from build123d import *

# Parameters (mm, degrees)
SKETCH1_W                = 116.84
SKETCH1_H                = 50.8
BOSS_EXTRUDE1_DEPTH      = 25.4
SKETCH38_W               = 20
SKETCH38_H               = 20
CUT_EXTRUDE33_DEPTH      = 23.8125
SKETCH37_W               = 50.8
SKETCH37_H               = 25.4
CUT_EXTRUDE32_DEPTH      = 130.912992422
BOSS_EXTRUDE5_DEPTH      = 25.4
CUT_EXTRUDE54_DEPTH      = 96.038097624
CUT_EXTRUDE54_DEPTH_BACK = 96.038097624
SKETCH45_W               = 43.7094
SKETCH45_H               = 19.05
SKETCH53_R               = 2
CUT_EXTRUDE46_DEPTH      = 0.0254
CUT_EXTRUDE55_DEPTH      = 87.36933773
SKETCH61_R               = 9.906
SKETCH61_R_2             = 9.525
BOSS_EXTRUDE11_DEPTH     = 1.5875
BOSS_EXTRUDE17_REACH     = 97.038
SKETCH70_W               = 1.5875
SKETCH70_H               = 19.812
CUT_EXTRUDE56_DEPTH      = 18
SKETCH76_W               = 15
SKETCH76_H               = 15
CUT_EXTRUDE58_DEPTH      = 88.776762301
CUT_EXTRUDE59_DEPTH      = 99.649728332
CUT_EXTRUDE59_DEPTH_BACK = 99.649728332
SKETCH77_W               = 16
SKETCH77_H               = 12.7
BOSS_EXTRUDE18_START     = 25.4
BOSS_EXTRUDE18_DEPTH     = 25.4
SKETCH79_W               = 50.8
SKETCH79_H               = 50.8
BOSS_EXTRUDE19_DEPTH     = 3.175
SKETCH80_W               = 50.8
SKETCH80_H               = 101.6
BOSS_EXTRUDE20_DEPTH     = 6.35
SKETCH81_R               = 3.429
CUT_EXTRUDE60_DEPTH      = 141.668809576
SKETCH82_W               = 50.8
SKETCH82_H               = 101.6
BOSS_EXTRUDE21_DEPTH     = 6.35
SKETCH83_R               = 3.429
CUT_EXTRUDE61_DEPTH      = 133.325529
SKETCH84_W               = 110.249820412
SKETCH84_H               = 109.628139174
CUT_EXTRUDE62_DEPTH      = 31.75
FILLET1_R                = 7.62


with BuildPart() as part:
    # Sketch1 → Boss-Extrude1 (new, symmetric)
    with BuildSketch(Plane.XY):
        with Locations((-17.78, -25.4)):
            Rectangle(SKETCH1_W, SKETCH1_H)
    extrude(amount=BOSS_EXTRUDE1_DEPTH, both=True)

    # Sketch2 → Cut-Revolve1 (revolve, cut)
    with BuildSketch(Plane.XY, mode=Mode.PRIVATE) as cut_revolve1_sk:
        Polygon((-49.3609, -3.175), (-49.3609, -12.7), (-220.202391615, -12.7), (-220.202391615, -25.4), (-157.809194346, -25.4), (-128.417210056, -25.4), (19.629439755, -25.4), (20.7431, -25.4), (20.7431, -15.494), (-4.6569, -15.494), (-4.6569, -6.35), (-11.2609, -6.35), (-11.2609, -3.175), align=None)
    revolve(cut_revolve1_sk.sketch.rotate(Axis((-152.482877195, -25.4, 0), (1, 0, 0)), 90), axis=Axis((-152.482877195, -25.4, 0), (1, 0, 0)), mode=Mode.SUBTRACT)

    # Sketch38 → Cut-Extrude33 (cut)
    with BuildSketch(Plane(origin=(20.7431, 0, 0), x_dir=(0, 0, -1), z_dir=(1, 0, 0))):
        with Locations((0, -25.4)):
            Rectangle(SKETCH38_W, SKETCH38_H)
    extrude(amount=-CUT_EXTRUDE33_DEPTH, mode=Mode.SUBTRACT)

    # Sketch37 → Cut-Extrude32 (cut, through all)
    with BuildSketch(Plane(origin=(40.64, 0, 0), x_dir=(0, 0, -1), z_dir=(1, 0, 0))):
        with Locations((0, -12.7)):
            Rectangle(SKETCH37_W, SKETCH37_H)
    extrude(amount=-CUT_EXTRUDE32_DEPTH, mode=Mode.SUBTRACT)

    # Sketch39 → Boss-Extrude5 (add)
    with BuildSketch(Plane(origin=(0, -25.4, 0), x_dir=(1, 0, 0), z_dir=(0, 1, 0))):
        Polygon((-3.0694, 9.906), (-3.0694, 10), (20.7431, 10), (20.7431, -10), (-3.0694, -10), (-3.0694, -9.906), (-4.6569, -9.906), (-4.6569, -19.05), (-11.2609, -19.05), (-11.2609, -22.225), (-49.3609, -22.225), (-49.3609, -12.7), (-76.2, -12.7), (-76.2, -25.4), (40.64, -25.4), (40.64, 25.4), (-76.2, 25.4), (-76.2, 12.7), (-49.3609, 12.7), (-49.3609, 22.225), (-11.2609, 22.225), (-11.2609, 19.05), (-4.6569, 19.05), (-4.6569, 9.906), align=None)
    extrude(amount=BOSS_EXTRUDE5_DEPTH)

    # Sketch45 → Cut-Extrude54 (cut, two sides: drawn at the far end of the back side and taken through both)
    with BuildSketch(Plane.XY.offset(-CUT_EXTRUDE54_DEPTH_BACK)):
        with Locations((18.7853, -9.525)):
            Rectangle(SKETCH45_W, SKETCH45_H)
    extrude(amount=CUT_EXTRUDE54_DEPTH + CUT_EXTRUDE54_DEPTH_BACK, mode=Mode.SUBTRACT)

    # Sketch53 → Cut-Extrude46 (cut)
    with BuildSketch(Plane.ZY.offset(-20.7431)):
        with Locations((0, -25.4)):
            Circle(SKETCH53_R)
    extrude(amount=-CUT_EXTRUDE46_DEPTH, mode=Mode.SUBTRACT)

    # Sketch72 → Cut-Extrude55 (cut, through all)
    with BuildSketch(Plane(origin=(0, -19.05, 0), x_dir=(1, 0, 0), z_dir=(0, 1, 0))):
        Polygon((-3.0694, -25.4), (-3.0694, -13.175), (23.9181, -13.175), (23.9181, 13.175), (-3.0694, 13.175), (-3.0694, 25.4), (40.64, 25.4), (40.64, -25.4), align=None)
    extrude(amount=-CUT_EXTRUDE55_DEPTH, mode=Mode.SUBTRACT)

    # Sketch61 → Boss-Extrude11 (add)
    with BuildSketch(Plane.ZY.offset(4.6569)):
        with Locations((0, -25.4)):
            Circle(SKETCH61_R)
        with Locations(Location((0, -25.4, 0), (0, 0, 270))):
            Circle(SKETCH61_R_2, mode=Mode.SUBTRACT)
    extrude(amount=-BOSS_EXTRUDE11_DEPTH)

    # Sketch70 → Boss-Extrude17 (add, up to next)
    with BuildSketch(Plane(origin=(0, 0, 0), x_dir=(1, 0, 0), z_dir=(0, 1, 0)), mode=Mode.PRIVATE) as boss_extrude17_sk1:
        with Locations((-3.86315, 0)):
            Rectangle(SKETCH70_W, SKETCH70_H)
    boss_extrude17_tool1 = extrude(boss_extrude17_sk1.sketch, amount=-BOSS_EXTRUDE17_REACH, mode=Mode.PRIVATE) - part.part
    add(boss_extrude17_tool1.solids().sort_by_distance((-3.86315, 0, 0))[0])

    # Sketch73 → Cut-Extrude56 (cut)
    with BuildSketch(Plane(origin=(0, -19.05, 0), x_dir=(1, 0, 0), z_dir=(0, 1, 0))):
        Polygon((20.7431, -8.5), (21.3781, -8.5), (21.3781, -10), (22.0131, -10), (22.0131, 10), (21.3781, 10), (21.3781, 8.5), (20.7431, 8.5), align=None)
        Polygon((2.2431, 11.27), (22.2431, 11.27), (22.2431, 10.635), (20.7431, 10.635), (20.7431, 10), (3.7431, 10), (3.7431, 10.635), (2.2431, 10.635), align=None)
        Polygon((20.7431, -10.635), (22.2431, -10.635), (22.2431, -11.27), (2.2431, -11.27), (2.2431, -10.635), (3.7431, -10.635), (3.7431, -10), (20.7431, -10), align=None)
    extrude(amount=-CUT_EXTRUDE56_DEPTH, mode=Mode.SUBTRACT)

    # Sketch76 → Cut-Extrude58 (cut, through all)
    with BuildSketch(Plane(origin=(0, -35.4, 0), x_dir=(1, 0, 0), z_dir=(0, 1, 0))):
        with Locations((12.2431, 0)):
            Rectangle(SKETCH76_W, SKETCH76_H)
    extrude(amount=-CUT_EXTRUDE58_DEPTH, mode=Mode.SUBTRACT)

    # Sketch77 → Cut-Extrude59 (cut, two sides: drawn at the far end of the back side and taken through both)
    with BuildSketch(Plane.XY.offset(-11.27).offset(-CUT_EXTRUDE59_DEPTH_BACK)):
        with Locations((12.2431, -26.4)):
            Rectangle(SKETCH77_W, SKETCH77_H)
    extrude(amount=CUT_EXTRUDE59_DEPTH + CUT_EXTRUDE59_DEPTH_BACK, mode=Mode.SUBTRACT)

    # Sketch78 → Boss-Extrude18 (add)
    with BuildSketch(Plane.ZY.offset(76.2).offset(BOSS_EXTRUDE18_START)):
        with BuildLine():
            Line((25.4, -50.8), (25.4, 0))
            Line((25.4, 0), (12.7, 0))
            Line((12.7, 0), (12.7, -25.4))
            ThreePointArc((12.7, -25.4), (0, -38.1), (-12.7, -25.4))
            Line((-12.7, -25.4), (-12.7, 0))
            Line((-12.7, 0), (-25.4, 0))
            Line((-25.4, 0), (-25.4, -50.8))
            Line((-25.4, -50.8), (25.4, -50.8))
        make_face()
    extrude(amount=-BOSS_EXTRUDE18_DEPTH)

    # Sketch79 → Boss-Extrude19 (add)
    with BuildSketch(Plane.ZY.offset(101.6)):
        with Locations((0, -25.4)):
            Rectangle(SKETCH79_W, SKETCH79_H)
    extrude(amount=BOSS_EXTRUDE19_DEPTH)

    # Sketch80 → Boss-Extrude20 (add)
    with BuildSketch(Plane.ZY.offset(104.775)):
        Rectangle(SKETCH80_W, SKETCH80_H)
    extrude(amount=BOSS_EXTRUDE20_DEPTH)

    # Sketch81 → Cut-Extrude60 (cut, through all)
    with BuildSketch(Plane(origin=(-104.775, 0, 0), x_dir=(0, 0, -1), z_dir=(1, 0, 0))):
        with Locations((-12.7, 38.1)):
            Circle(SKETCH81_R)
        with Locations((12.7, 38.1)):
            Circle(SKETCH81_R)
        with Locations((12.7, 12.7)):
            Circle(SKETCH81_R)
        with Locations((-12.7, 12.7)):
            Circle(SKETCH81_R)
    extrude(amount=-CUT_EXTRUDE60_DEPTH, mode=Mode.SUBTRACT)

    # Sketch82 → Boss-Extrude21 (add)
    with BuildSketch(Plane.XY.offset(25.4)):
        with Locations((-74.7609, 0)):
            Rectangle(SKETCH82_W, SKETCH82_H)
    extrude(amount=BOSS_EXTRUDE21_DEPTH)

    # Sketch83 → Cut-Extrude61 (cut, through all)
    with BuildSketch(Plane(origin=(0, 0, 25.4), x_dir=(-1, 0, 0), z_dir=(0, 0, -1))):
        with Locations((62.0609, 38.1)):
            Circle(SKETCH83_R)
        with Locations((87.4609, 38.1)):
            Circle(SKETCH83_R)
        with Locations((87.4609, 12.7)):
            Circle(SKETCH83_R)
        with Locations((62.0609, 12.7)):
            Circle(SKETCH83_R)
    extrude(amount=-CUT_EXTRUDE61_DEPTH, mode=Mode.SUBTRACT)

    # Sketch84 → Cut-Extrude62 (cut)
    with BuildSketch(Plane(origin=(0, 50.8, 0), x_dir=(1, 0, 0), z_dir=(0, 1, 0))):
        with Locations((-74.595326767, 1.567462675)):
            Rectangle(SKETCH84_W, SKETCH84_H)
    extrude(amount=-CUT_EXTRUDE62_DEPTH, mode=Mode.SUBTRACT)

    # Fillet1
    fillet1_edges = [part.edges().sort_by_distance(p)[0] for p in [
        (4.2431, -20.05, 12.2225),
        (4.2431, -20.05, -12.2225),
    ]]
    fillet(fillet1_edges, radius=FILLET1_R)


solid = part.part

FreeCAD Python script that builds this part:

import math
import FreeCAD as App
import Part
import Sketcher
Q = App.Units.Quantity


def edges_at(feature, points):
    """Names of the edges that pass closest to the given points."""
    edges = feature.Shape.Edges
    near = lambda p: min(range(len(edges)), key=lambda i: edges[i].distToShape(Part.Vertex(*p))[0])
    return sorted({f"Edge{near(p) + 1}" for p in points})

doc = App.newDocument("Part")
body = doc.addObject("PartDesign::Body", "Body")

sketch1 = body.newObject("Sketcher::SketchObject", "Sketch")
sketch1.AttachmentSupport = (doc.getObject("XY_Plane"), [""])
sketch1.MapMode = "FlatFace"
sketch1.addGeometry([
    Part.LineSegment(App.Vector(-76, 0, 0), App.Vector(-76, -51, 0)),
    Part.LineSegment(App.Vector(-76, -51, 0), App.Vector(41, -51, 0)),
    Part.LineSegment(App.Vector(41, -51, 0), App.Vector(41, 0, 0)),
    Part.LineSegment(App.Vector(41, 0, 0), App.Vector(-76, 0, 0)),
], False)
sketch1.addConstraint([
    Sketcher.Constraint("Coincident", 0, 2, 1, 1),
    Sketcher.Constraint("Coincident", 1, 2, 2, 1),
    Sketcher.Constraint("Coincident", 2, 2, 3, 1),
    Sketcher.Constraint("Coincident", 3, 2, 0, 1),
    Sketcher.Constraint("Vertical", 0),
    Sketcher.Constraint("Horizontal", 1),
    Sketcher.Constraint("Vertical", 2),
    Sketcher.Constraint("Horizontal", 3),
    Sketcher.Constraint("PointOnObject", 2, 2, -1),
    Sketcher.Constraint("DistanceY", 0, 2, 0, 1, Q("2 in")),
    Sketcher.Constraint("DistanceX", 1, 1, 1, 2, Q("4.6 in")),
    Sketcher.Constraint("DistanceX", 0, 2, -1, 1, Q("3 in")),
])
pad1 = body.newObject("PartDesign::Pad", "Pad")
pad1.Profile = sketch1
pad1.Length = Q("2 in")
pad1.Midplane = True

sketch2 = body.newObject("Sketcher::SketchObject", "Sketch001")
sketch2.AttachmentSupport = (doc.getObject("XY_Plane"), [""])
sketch2.MapMode = "FlatFace"
sketch2.addGeometry([
    Part.LineSegment(App.Vector(-49.4, -3.2, 0), App.Vector(-49.4, -12.7, 0)),
    Part.LineSegment(App.Vector(-49.4, -12.7, 0), App.Vector(-220.2, -12.7, 0)),
    Part.LineSegment(App.Vector(-220.2, -12.7, 0), App.Vector(-220.2, -25.4, 0)),
    Part.LineSegment(App.Vector(-220.2, -25.4, 0), App.Vector(20.7, -25.4, 0)),
    Part.LineSegment(App.Vector(20.7, -25.4, 0), App.Vector(20.7, -15.5, 0)),
    Part.LineSegment(App.Vector(20.7, -15.5, 0), App.Vector(-4.7, -15.5, 0)),
    Part.LineSegment(App.Vector(-4.7, -15.5, 0), App.Vector(-4.7, -6.3, 0)),
    Part.LineSegment(App.Vector(-4.7, -6.3, 0), App.Vector(-11.3, -6.3, 0)),
    Part.LineSegment(App.Vector(-11.3, -6.3, 0), App.Vector(-11.3, -3.2, 0)),
    Part.LineSegment(App.Vector(-11.3, -3.2, 0), App.Vector(-49.4, -3.2, 0)),
], False)
sketch2.addGeometry(Part.LineSegment(App.Vector(-220.2, -25.4, 0), App.Vector(20.7, -25.4, 0)), True)
sketch2.addConstraint([
    Sketcher.Constraint("Coincident", 0, 2, 1, 1),
    Sketcher.Constraint("Coincident", 1, 2, 2, 1),
    Sketcher.Constraint("Coincident", 2, 2, 3, 1),
    Sketcher.Constraint("Coincident", 3, 2, 4, 1),
    Sketcher.Constraint("Coincident", 4, 2, 5, 1),
    Sketcher.Constraint("Coincident", 5, 2, 6, 1),
    Sketcher.Constraint("Coincident", 6, 2, 7, 1),
    Sketcher.Constraint("Coincident", 7, 2, 8, 1),
    Sketcher.Constraint("Coincident", 8, 2, 9, 1),
    Sketcher.Constraint("Coincident", 9, 2, 0, 1),
    Sketcher.Constraint("Vertical", 0),
    Sketcher.Constraint("Horizontal", 1),
    Sketcher.Constraint("Vertical", 2),
    Sketcher.Constraint("Horizontal", 3),
    Sketcher.Constraint("Vertical", 4),
    Sketcher.Constraint("Horizontal", 5),
    Sketcher.Constraint("Vertical", 6),
    Sketcher.Constraint("Horizontal", 7),
    Sketcher.Constraint("Vertical", 8),
    Sketcher.Constraint("Horizontal", 9),
    Sketcher.Constraint("Horizontal", 10),
    Sketcher.Constraint("Coincident", 10, 1, 2, 2),
    Sketcher.Constraint("Vertical", 4, 2, 10, 2),
    Sketcher.Constraint("DistanceX", 5, 2, 5, 1, Q("1 in")),
    Sketcher.Constraint("DistanceX", 9, 2, 9, 1, Q("1.5 in")),
    Sketcher.Constraint("DistanceY", 2, 2, 2, 1, Q("0.5 in")),
    Sketcher.Constraint("DistanceY", 2, 2, -1, 1, Q("1 in")),
    Sketcher.Constraint("DistanceX", 7, 2, 7, 1, Q("0.26 in")),
    Sketcher.Constraint("DistanceY", 4, 1, 4, 2, Q("0.39 in")),
    Sketcher.Constraint("DistanceY", 6, 1, 6, 2, Q("0.36 in")),
    Sketcher.Constraint("DistanceY", 0, 2, 0, 1, Q("0.375 in")),
    Sketcher.Constraint("DistanceX", 1, 2, 1, 1, Q("170.841492 mm")),
    Sketcher.Constraint("DistanceX", 0, 2, -1, 1, Q("49.3609 mm")),
])
groove = body.newObject("PartDesign::Groove", "Groove")
groove.Profile = sketch2
groove.ReferenceAxis = (sketch2, ["Axis0"])
groove.Angle = 360

sketch3 = body.newObject("Sketcher::SketchObject", "Sketch002")
sketch3.AttachmentSupport = (doc.getObject("YZ_Plane"), [""])
sketch3.MapMode = "FlatFace"
sketch3.AttachmentOffset = App.Placement(App.Vector(0, 0, 20.7431), App.Rotation())
sketch3.addGeometry([
    Part.LineSegment(App.Vector(-15, 10, 0), App.Vector(-35, 10, 0)),
    Part.LineSegment(App.Vector(-35, 10, 0), App.Vector(-35, -10, 0)),
    Part.LineSegment(App.Vector(-35, -10, 0), App.Vector(-15, -10, 0)),
    Part.LineSegment(App.Vector(-15, -10, 0), App.Vector(-15, 10, 0)),
], False)
sketch3.addConstraint([
    Sketcher.Constraint("Coincident", 0, 2, 1, 1),
    Sketcher.Constraint("Coincident", 1, 2, 2, 1),
    Sketcher.Constraint("Coincident", 2, 2, 3, 1),
    Sketcher.Constraint("Coincident", 3, 2, 0, 1),
    Sketcher.Constraint("Horizontal", 0),
    Sketcher.Constraint("Vertical", 1),
    Sketcher.Constraint("Horizontal", 2),
    Sketcher.Constraint("Vertical", 3),
    Sketcher.Constraint("Equal", 2, 1),
    Sketcher.Constraint("DistanceX", 0, 2, 0, 1, Q("20 mm")),
    Sketcher.Constraint("DistanceX", 0, 2, -1, 1, Q("35.4 mm")),
    Sketcher.Constraint("DistanceY", -1, 1, 0, 2, Q("10 mm")),
])
pocket1 = body.newObject("PartDesign::Pocket", "Pocket")
pocket1.Profile = sketch3
pocket1.Length = Q("0.9375 in")

sketch4 = body.newObject("Sketcher::SketchObject", "Sketch003")
sketch4.AttachmentSupport = (doc.getObject("YZ_Plane"), [""])
sketch4.MapMode = "FlatFace"
sketch4.AttachmentOffset = App.Placement(App.Vector(0, 0, 1.6 * 25.4), App.Rotation())
sketch4.addGeometry([
    Part.LineSegment(App.Vector(0, 25, 0), App.Vector(-25, 25, 0)),
    Part.LineSegment(App.Vector(-25, 25, 0), App.Vector(-25, -25, 0)),
    Part.LineSegment(App.Vector(-25, -25, 0), App.Vector(0, -25, 0)),
    Part.LineSegment(App.Vector(0, -25, 0), App.Vector(0, 25, 0)),
], False)
sketch4.addConstraint([
    Sketcher.Constraint("Coincident", 0, 2, 1, 1),
    Sketcher.Constraint("Coincident", 1, 2, 2, 1),
    Sketcher.Constraint("Coincident", 2, 2, 3, 1),
    Sketcher.Constraint("Coincident", 3, 2, 0, 1),
    Sketcher.Constraint("Horizontal", 0),
    Sketcher.Constraint("Vertical", 1),
    Sketcher.Constraint("Horizontal", 2),
    Sketcher.Constraint("Vertical", 3),
    Sketcher.Constraint("Symmetric", 2, 2, 3, 2, -1, 1),
    Sketcher.Constraint("DistanceX", 0, 2, 0, 1, Q("1 in")),
    Sketcher.Constraint("DistanceY", 1, 2, 1, 1, Q("2 in")),
])
pocket2 = body.newObject("PartDesign::Pocket", "Pocket001")
pocket2.Profile = sketch4
pocket2.Type = "ThroughAll"

sketch5 = body.newObject("Sketcher::SketchObject", "Sketch004")
sketch5.AttachmentSupport = (doc.getObject("XZ_Plane"), [""])
sketch5.MapMode = "FlatFace"
sketch5.AttachmentOffset = App.Placement(App.Vector(0, 0, 1 * 25.4), App.Rotation())
sketch5.addGeometry([
    Part.LineSegment(App.Vector(-3.07, -9.91, 0), App.Vector(-3.07, -10, 0)),
    Part.LineSegment(App.Vector(-3.07, -10, 0), App.Vector(20.74, -10, 0)),
    Part.LineSegment(App.Vector(20.74, -10, 0), App.Vector(20.74, 10, 0)),
    Part.LineSegment(App.Vector(20.74, 10, 0), App.Vector(-3.07, 10, 0)),
    Part.LineSegment(App.Vector(-3.07, 10, 0), App.Vector(-3.07, 9.91, 0)),
    Part.LineSegment(App.Vector(-3.07, 9.91, 0), App.Vector(-4.66, 9.91, 0)),
    Part.LineSegment(App.Vector(-4.66, 9.91, 0), App.Vector(-4.66, 19.05, 0)),
    Part.LineSegment(App.Vector(-4.66, 19.05, 0), App.Vector(-11.26, 19.05, 0)),
    Part.LineSegment(App.Vector(-11.26, 19.05, 0), App.Vector(-11.26, 22.23, 0)),
    Part.LineSegment(App.Vector(-11.26, 22.23, 0), App.Vector(-49.36, 22.23, 0)),
    Part.LineSegment(App.Vector(-49.36, 22.23, 0), App.Vector(-49.36, 12.7, 0)),
    Part.LineSegment(App.Vector(-49.36, 12.7, 0), App.Vector(-76.2, 12.7, 0)),
    Part.LineSegment(App.Vector(-76.2, 12.7, 0), App.Vector(-76.2, 25.4, 0)),
    Part.LineSegment(App.Vector(-76.2, 25.4, 0), App.Vector(40.64, 25.4, 0)),
    Part.LineSegment(App.Vector(40.64, 25.4, 0), App.Vector(40.64, -25.4, 0)),
    Part.LineSegment(App.Vector(40.64, -25.4, 0), App.Vector(-76.2, -25.4, 0)),
    Part.LineSegment(App.Vector(-76.2, -25.4, 0), App.Vector(-76.2, -12.7, 0)),
    Part.LineSegment(App.Vector(-76.2, -12.7, 0), App.Vector(-49.36, -12.7, 0)),
    Part.LineSegment(App.Vector(-49.36, -12.7, 0), App.Vector(-49.36, -22.23, 0)),
    Part.LineSegment(App.Vector(-49.36, -22.23, 0), App.Vector(-11.26, -22.23, 0)),
    Part.LineSegment(App.Vector(-11.26, -22.23, 0), App.Vector(-11.26, -19.05, 0)),
    Part.LineSegment(App.Vector(-11.26, -19.05, 0), App.Vector(-4.66, -19.05, 0)),
    Part.LineSegment(App.Vector(-4.66, -19.05, 0), App.Vector(-4.66, -9.91, 0)),
    Part.LineSegment(App.Vector(-4.66, -9.91, 0), App.Vector(-3.07, -9.91, 0)),
], False)
sketch5.addConstraint([
    Sketcher.Constraint("Coincident", 0, 2, 1, 1),
    Sketcher.Constraint("Coincident", 1, 2, 2, 1),
    Sketcher.Constraint("Coincident", 2, 2, 3, 1),
    Sketcher.Constraint("Coincident", 3, 2, 4, 1),
    Sketcher.Constraint("Coincident", 4, 2, 5, 1),
    Sketcher.Constraint("Coincident", 5, 2, 6, 1),
    Sketcher.Constraint("Coincident", 6, 2, 7, 1),
    Sketcher.Constraint("Coincident", 7, 2, 8, 1),
    Sketcher.Constraint("Coincident", 8, 2, 9, 1),
    Sketcher.Constraint("Coincident", 9, 2, 10, 1),
    Sketcher.Constraint("Coincident", 10, 2, 11, 1),
    Sketcher.Constraint("Coincident", 11, 2, 12, 1),
    Sketcher.Constraint("Coincident", 12, 2, 13, 1),
    Sketcher.Constraint("Coincident", 13, 2, 14, 1),
    Sketcher.Constraint("Coincident", 14, 2, 15, 1),
    Sketcher.Constraint("Coincident", 15, 2, 16, 1),
    Sketcher.Constraint("Coincident", 16, 2, 17, 1),
    Sketcher.Constraint("Coincident", 17, 2, 18, 1),
    Sketcher.Constraint("Coincident", 18, 2, 19, 1),
    Sketcher.Constraint("Coincident", 19, 2, 20, 1),
    Sketcher.Constraint("Coincident", 20, 2, 21, 1),
    Sketcher.Constraint("Coincident", 21, 2, 22, 1),
    Sketcher.Constraint("Coincident", 22, 2, 23, 1),
    Sketcher.Constraint("Coincident", 23, 2, 0, 1),
    Sketcher.Constraint("Vertical", 0),
    Sketcher.Constraint("Horizontal", 1),
    Sketcher.Constraint("Vertical", 2),
    Sketcher.Constraint("Horizontal", 3),
    Sketcher.Constraint("Vertical", 4),
    Sketcher.Constraint("Horizontal", 5),
    Sketcher.Constraint("Vertical", 6),
    Sketcher.Constraint("Horizontal", 7),
    Sketcher.Constraint("Vertical", 8),
    Sketcher.Constraint("Horizontal", 9),
    Sketcher.Constraint("Vertical", 10),
    Sketcher.Constraint("Horizontal", 11),
    Sketcher.Constraint("Vertical", 12),
    Sketcher.Constraint("Horizontal", 13),
    Sketcher.Constraint("Vertical", 14),
    Sketcher.Constraint("Horizontal", 15),
    Sketcher.Constraint("Vertical", 16),
    Sketcher.Constraint("Horizontal", 17),
    Sketcher.Constraint("Vertical", 18),
    Sketcher.Constraint("Horizontal", 19),
    Sketcher.Constraint("Vertical", 20),
    Sketcher.Constraint("Horizontal", 21),
    Sketcher.Constraint("Vertical", 22),
    Sketcher.Constraint("Horizontal", 23),
    Sketcher.Constraint("Symmetric", 0, 2, 3, 2, -1),
    Sketcher.Constraint("Symmetric", 12, 2, 15, 2, -1),
    Sketcher.Constraint("Symmetric", 10, 2, 17, 2, -1),
    Sketcher.Constraint("Symmetric", 8, 2, 19, 2, -1),
    Sketcher.Constraint("Symmetric", 6, 2, 21, 2, -1),
    Sketcher.Constraint("Equal", 0, 4),
    Sketcher.Constraint("DistanceY", 14, 2, 14, 1, Q("2 in")),
    Sketcher.Constraint("DistanceX", 9, 2, 9, 1, Q("1.5 in")),
    Sketcher.Constraint("DistanceX", 13, 1, 13, 2, Q("4.6 in")),
    Sketcher.Constraint("DistanceY", 12, 1, 12, 2, Q("0.5 in")),
    Sketcher.Constraint("DistanceX", 11, 2, -1, 1, Q("3 in")),
    Sketcher.Constraint("DistanceX", 5, 2, 2, 2, Q("1 in")),
    Sketcher.Constraint("DistanceX", 7, 2, 7, 1, Q("0.26 in")),
    Sketcher.Constraint("DistanceY", 6, 1, 6, 2, Q("0.36 in")),
    Sketcher.Constraint("DistanceX", 1, 1, 1, 2, Q("0.9375 in")),
    Sketcher.Constraint("DistanceY", 8, 1, 8, 2, Q("0.125 in")),
    Sketcher.Constraint("DistanceY", 10, 2, 10, 1, Q("0.375 in")),
    Sketcher.Constraint("DistanceX", 11, 2, 11, 1, Q("26.8391 mm")),
    Sketcher.Constraint("DistanceY", 0, 2, 0, 1, Q("0.094 mm")),
])
pad2 = body.newObject("PartDesign::Pad", "Pad001")
pad2.Profile = sketch5
pad2.Length = Q("1 in")
pad2.Reversed = True

sketch6 = body.newObject("Sketcher::SketchObject", "Sketch005")
sketch6.AttachmentSupport = (doc.getObject("XY_Plane"), [""])
sketch6.MapMode = "FlatFace"
sketch6.addGeometry([
    Part.LineSegment(App.Vector(-3, 0, 0), App.Vector(-3, -19, 0)),
    Part.LineSegment(App.Vector(-3, -19, 0), App.Vector(41, -19, 0)),
    Part.LineSegment(App.Vector(41, -19, 0), App.Vector(41, 0, 0)),
    Part.LineSegment(App.Vector(41, 0, 0), App.Vector(-3, 0, 0)),
], False)
sketch6.addConstraint([
    Sketcher.Constraint("Coincident", 0, 2, 1, 1),
    Sketcher.Constraint("Coincident", 1, 2, 2, 1),
    Sketcher.Constraint("Coincident", 2, 2, 3, 1),
    Sketcher.Constraint("Coincident", 3, 2, 0, 1),
    Sketcher.Constraint("Vertical", 0),
    Sketcher.Constraint("Horizontal", 1),
    Sketcher.Constraint("Vertical", 2),
    Sketcher.Constraint("Horizontal", 3),
    Sketcher.Constraint("PointOnObject", 2, 2, -1),
    Sketcher.Constraint("DistanceY", 0, 2, 0, 1, Q("0.75 in")),
    Sketcher.Constraint("DistanceX", -1, 1, 1, 2, Q("1.6 in")),
    Sketcher.Constraint("DistanceX", 1, 1, 1, 2, Q("43.7094 mm")),
])
pocket3 = body.newObject("PartDesign::Pocket", "Pocket002")
pocket3.Profile = sketch6
pocket3.Type = "ThroughAll"
pocket3.Midplane = True

sketch7 = body.newObject("Sketcher::SketchObject", "Sketch006")
sketch7.AttachmentSupport = (doc.getObject("YZ_Plane"), [""])
sketch7.MapMode = "FlatFace"
sketch7.AttachmentOffset = App.Placement(App.Vector(0, 0, 20.7431), App.Rotation())
sketch7.addGeometry(Part.Circle(App.Vector(-25.4, 0, 0), App.Vector(0, 0, 1), 2), False)
sketch7.addConstraint([
    Sketcher.Constraint("PointOnObject", 0, 3, -1),
    Sketcher.Constraint("DistanceX", 0, 3, -1, 1, Q("1 in")),
    Sketcher.Constraint("Diameter", 0, Q("4 mm")),
])
pocket4 = body.newObject("PartDesign::Pocket", "Pocket003")
pocket4.Profile = sketch7
pocket4.Length = Q("0.001 in")
pocket4.Reversed = True

sketch8 = body.newObject("Sketcher::SketchObject", "Sketch007")
sketch8.AttachmentSupport = (doc.getObject("XZ_Plane"), [""])
sketch8.MapMode = "FlatFace"
sketch8.AttachmentOffset = App.Placement(App.Vector(0, 0, 0.75 * 25.4), App.Rotation())
sketch8.addGeometry([
    Part.LineSegment(App.Vector(-3, 13, 0), App.Vector(-3, 25, 0)),
    Part.LineSegment(App.Vector(-3, 25, 0), App.Vector(41, 25, 0)),
    Part.LineSegment(App.Vector(41, 25, 0), App.Vector(41, -25, 0)),
    Part.LineSegment(App.Vector(41, -25, 0), App.Vector(-3, -25, 0)),
    Part.LineSegment(App.Vector(-3, -25, 0), App.Vector(-3, -13, 0)),
    Part.LineSegment(App.Vector(-3, -13, 0), App.Vector(24, -13, 0)),
    Part.LineSegment(App.Vector(24, -13, 0), App.Vector(24, 13, 0)),
    Part.LineSegment(App.Vector(24, 13, 0), App.Vector(-3, 13, 0)),
], False)
sketch8.addConstraint([
    Sketcher.Constraint("Coincident", 0, 2, 1, 1),
    Sketcher.Constraint("Coincident", 1, 2, 2, 1),
    Sketcher.Constraint("Coincident", 2, 2, 3, 1),
    Sketcher.Constraint("Coincident", 3, 2, 4, 1),
    Sketcher.Constraint("Coincident", 4, 2, 5, 1),
    Sketcher.Constraint("Coincident", 5, 2, 6, 1),
    Sketcher.Constraint("Coincident", 6, 2, 7, 1),
    Sketcher.Constraint("Coincident", 7, 2, 0, 1),
    Sketcher.Constraint("Vertical", 0),
    Sketcher.Constraint("Horizontal", 1),
    Sketcher.Constraint("Vertical", 2),
    Sketcher.Constraint("Horizontal", 3),
    Sketcher.Constraint("Vertical", 4),
    Sketcher.Constraint("Horizontal", 5),
    Sketcher.Constraint("Vertical", 6),
    Sketcher.Constraint("Horizontal", 7),
    Sketcher.Constraint("Symmetric", 0, 2, 3, 2, -1),
    Sketcher.Constraint("Equal", 0, 4),
    Sketcher.Constraint("DistanceY", 2, 2, 2, 1, Q("2 in")),
    Sketcher.Constraint("DistanceX", -1, 1, 1, 2, Q("1.6 in")),
    Sketcher.Constraint("DistanceX", 5, 1, 5, 2, Q("1.0625 in")),
    Sketcher.Constraint("DistanceX", 1, 1, 1, 2, Q("43.7094 mm")),
    Sketcher.Constraint("DistanceY", 0, 1, 0, 2, Q("12.225 mm")),
])
pocket5 = body.newObject("PartDesign::Pocket", "Pocket004")
pocket5.Profile = sketch8
pocket5.Type = "ThroughAll"
pocket5.Reversed = True

sketch9 = body.newObject("Sketcher::SketchObject", "Sketch008")
sketch9.AttachmentSupport = (doc.getObject("YZ_Plane"), [""])
sketch9.MapMode = "FlatFace"
sketch9.AttachmentOffset = App.Placement(App.Vector(0, 0, -4.6569), App.Rotation())
sketch9.addGeometry([
    Part.Circle(App.Vector(-25, 0, 0), App.Vector(0, 0, 1), 10),
    Part.Circle(App.Vector(-25, 0, 0), App.Vector(0, 0, 1), 10),
], False)
sketch9.addConstraint([
    Sketcher.Constraint("Coincident", 1, 3, 0, 3),
    Sketcher.Constraint("PointOnObject", 0, 3, -1),
    Sketcher.Constraint("Diameter", 0, Q("0.78 in")),
    Sketcher.Constraint("Diameter", 1, Q("0.75 in")),
    Sketcher.Constraint("DistanceX", 0, 3, -1, 1, Q("1 in")),
])
pad3 = body.newObject("PartDesign::Pad", "Pad002")
pad3.Profile = sketch9
pad3.Length = Q("0.0625 in")

sketch10 = body.newObject("Sketcher::SketchObject", "Sketch009")
sketch10.AttachmentSupport = (doc.getObject("XZ_Plane"), [""])
sketch10.MapMode = "FlatFace"
sketch10.addGeometry([
    Part.LineSegment(App.Vector(-4.7, -9.9, 0), App.Vector(-4.7, 9.9, 0)),
    Part.LineSegment(App.Vector(-4.7, 9.9, 0), App.Vector(-3.1, 9.9, 0)),
    Part.LineSegment(App.Vector(-3.1, 9.9, 0), App.Vector(-3.1, -9.9, 0)),
    Part.LineSegment(App.Vector(-3.1, -9.9, 0), App.Vector(-4.7, -9.9, 0)),
], False)
sketch10.addConstraint([
    Sketcher.Constraint("Coincident", 0, 2, 1, 1),
    Sketcher.Constraint("Coincident", 1, 2, 2, 1),
    Sketcher.Constraint("Coincident", 2, 2, 3, 1),
    Sketcher.Constraint("Coincident", 3, 2, 0, 1),
    Sketcher.Constraint("Vertical", 0),
    Sketcher.Constraint("Horizontal", 1),
    Sketcher.Constraint("Vertical", 2),
    Sketcher.Constraint("Horizontal", 3),
    Sketcher.Constraint("DistanceY", 0, 1, 0, 2, Q("0.78 in")),
    Sketcher.Constraint("DistanceX", 1, 1, 1, 2, Q("0.0625 in")),
    Sketcher.Constraint("DistanceY", -1, 1, 0, 2, Q("0.39 in")),
    Sketcher.Constraint("DistanceX", 0, 2, -1, 1, Q("4.6569 mm")),
])
pad4 = body.newObject("PartDesign::Pad", "Pad003")
pad4.Profile = sketch10
pad4.Type = "UpToFirst"

sketch11 = body.newObject("Sketcher::SketchObject", "Sketch010")
sketch11.AttachmentSupport = (doc.getObject("XZ_Plane"), [""])
sketch11.MapMode = "FlatFace"
sketch11.AttachmentOffset = App.Placement(App.Vector(0, 0, 0.75 * 25.4), App.Rotation())
sketch11.addGeometry([
    Part.LineSegment(App.Vector(20.7, 8.5, 0), App.Vector(21.4, 8.5, 0)),
    Part.LineSegment(App.Vector(21.4, 8.5, 0), App.Vector(21.4, 10, 0)),
    Part.LineSegment(App.Vector(21.4, 10, 0), App.Vector(22, 10, 0)),
    Part.LineSegment(App.Vector(22, 10, 0), App.Vector(22, -10, 0)),
    Part.LineSegment(App.Vector(22, -10, 0), App.Vector(21.4, -10, 0)),
    Part.LineSegment(App.Vector(21.4, -10, 0), App.Vector(21.4, -8.5, 0)),
    Part.LineSegment(App.Vector(21.4, -8.5, 0), App.Vector(20.7, -8.5, 0)),
    Part.LineSegment(App.Vector(20.7, -8.5, 0), App.Vector(20.7, 8.5, 0)),
    Part.LineSegment(App.Vector(22.2, -11.3, 0), App.Vector(2.2, -11.3, 0)),
    Part.LineSegment(App.Vector(2.2, -11.3, 0), App.Vector(2.2, -10.6, 0)),
    Part.LineSegment(App.Vector(2.2, -10.6, 0), App.Vector(3.7, -10.6, 0)),
    Part.LineSegment(App.Vector(3.7, -10.6, 0), App.Vector(3.7, -10, 0)),
    Part.LineSegment(App.Vector(3.7, -10, 0), App.Vector(20.7, -10, 0)),
    Part.LineSegment(App.Vector(20.7, -10, 0), App.Vector(20.7, -10.6, 0)),
    Part.LineSegment(App.Vector(20.7, -10.6, 0), App.Vector(22.2, -10.6, 0)),
    Part.LineSegment(App.Vector(22.2, -10.6, 0), App.Vector(22.2, -11.3, 0)),
    Part.LineSegment(App.Vector(22.2, 10.6, 0), App.Vector(20.7, 10.6, 0)),
    Part.LineSegment(App.Vector(20.7, 10.6, 0), App.Vector(20.7, 10, 0)),
    Part.LineSegment(App.Vector(20.7, 10, 0), App.Vector(3.7, 10, 0)),
    Part.LineSegment(App.Vector(3.7, 10, 0), App.Vector(3.7, 10.6, 0)),
    Part.LineSegment(App.Vector(3.7, 10.6, 0), App.Vector(2.2, 10.6, 0)),
    Part.LineSegment(App.Vector(2.2, 10.6, 0), App.Vector(2.2, 11.3, 0)),
    Part.LineSegment(App.Vector(2.2, 11.3, 0), App.Vector(22.2, 11.3, 0)),
    Part.LineSegment(App.Vector(22.2, 11.3, 0), App.Vector(22.2, 10.6, 0)),
], False)
sketch11.addConstraint([
    Sketcher.Constraint("Coincident", 0, 2, 1, 1),
    Sketcher.Constraint("Coincident", 1, 2, 2, 1),
    Sketcher.Constraint("Coincident", 2, 2, 3, 1),
    Sketcher.Constraint("Coincident", 3, 2, 4, 1),
    Sketcher.Constraint("Coincident", 4, 2, 5, 1),
    Sketcher.Constraint("Coincident", 5, 2, 6, 1),
    Sketcher.Constraint("Coincident", 6, 2, 7, 1),
    Sketcher.Constraint("Coincident", 7, 2, 0, 1),
    Sketcher.Constraint("Coincident", 8, 2, 9, 1),
    Sketcher.Constraint("Coincident", 9, 2, 10, 1),
    Sketcher.Constraint("Coincident", 10, 2, 11, 1),
    Sketcher.Constraint("Coincident", 11, 2, 12, 1),
    Sketcher.Constraint("Coincident", 12, 2, 13, 1),
    Sketcher.Constraint("Coincident", 13, 2, 14, 1),
    Sketcher.Constraint("Coincident", 14, 2, 15, 1),
    Sketcher.Constraint("Coincident", 15, 2, 8, 1),
    Sketcher.Constraint("Coincident", 16, 2, 17, 1),
    Sketcher.Constraint("Coincident", 17, 2, 18, 1),
    Sketcher.Constraint("Coincident", 18, 2, 19, 1),
    Sketcher.Constraint("Coincident", 19, 2, 20, 1),
    Sketcher.Constraint("Coincident", 20, 2, 21, 1),
    Sketcher.Constraint("Coincident", 21, 2, 22, 1),
    Sketcher.Constraint("Coincident", 22, 2, 23, 1),
    Sketcher.Constraint("Coincident", 23, 2, 16, 1),
    Sketcher.Constraint("Horizontal", 0),
    Sketcher.Constraint("Vertical", 1),
    Sketcher.Constraint("Horizontal", 2),
    Sketcher.Constraint("Vertical", 3),
    Sketcher.Constraint("Horizontal", 4),
    Sketcher.Constraint("Vertical", 5),
    Sketcher.Constraint("Horizontal", 6),
    Sketcher.Constraint("Vertical", 7),
    Sketcher.Constraint("Horizontal", 8),
    Sketcher.Constraint("Vertical", 9),
    Sketcher.Constraint("Horizontal", 10),
    Sketcher.Constraint("Vertical", 11),
    Sketcher.Constraint("Horizontal", 12),
    Sketcher.Constraint("Vertical", 13),
    Sketcher.Constraint("Horizontal", 14),
    Sketcher.Constraint("Vertical", 15),
    Sketcher.Constraint("Horizontal", 16),
    Sketcher.Constraint("Vertical", 17),
    Sketcher.Constraint("Horizontal", 18),
    Sketcher.Constraint("Vertical", 19),
    Sketcher.Constraint("Horizontal", 20),
    Sketcher.Constraint("Vertical", 21),
    Sketcher.Constraint("Horizontal", 22),
    Sketcher.Constraint("Vertical", 23),
    Sketcher.Constraint("Symmetric", 1, 2, 4, 2, -1),
    Sketcher.Constraint("Symmetric", 13, 2, 16, 2, -1),
    Sketcher.Constraint("Symmetric", 11, 2, 18, 2, -1),
    Sketcher.Constraint("Symmetric", 9, 2, 20, 2, -1),
    Sketcher.Constraint("Symmetric", 15, 2, 22, 2, -1),
    Sketcher.Constraint("Horizontal", 4, 2, 11, 2),
    Sketcher.Constraint("Horizontal", 10, 2, 13, 2),
    Sketcher.Constraint("Vertical", 7, 2, 12, 2),
    Sketcher.Constraint("Equal", 0, 2),
    Sketcher.Constraint("Equal", 10, 14),
    Sketcher.Constraint("Equal", 20, 1),
    Sketcher.Constraint("Equal", 22, 3),
    Sketcher.Constraint("Equal", 1, 5),
    Sketcher.Constraint("Equal", 6, 9),
    Sketcher.Constraint("Equal", 9, 11),
    Sketcher.Constraint("DistanceX", 0, 1, 0, 2, Q("0.025 in")),
    Sketcher.Constraint("DistanceX", 8, 2, 8, 1, Q("20 mm")),
    Sketcher.Constraint("DistanceX", 10, 1, 10, 2, Q("1.5 mm")),
    Sketcher.Constraint("DistanceX", -1, 1, 0, 2, Q("21.3781 mm")),
])
pocket6 = body.newObject("PartDesign::Pocket", "Pocket005")
pocket6.Profile = sketch11
pocket6.Length = 18
pocket6.Reversed = True

sketch12 = body.newObject("Sketcher::SketchObject", "Sketch011")
sketch12.AttachmentSupport = (doc.getObject("XZ_Plane"), [""])
sketch12.MapMode = "FlatFace"
sketch12.AttachmentOffset = App.Placement(App.Vector(0, 0, 35.4), App.Rotation())
sketch12.addGeometry([
    Part.LineSegment(App.Vector(5, -8, 0), App.Vector(5, 8, 0)),
    Part.LineSegment(App.Vector(5, 8, 0), App.Vector(20, 8, 0)),
    Part.LineSegment(App.Vector(20, 8, 0), App.Vector(20, -8, 0)),
    Part.LineSegment(App.Vector(20, -8, 0), App.Vector(5, -8, 0)),
], False)
sketch12.addConstraint([
    Sketcher.Constraint("Coincident", 0, 2, 1, 1),
    Sketcher.Constraint("Coincident", 1, 2, 2, 1),
    Sketcher.Constraint("Coincident", 2, 2, 3, 1),
    Sketcher.Constraint("Coincident", 3, 2, 0, 1),
    Sketcher.Constraint("Vertical", 0),
    Sketcher.Constraint("Horizontal", 1),
    Sketcher.Constraint("Vertical", 2),
    Sketcher.Constraint("Horizontal", 3),
    Sketcher.Constraint("Equal", 3, 0),
    Sketcher.Constraint("DistanceX", 1, 1, 1, 2, Q("15 mm")),
    Sketcher.Constraint("DistanceX", -1, 1, 0, 2, Q("4.7431 mm")),
    Sketcher.Constraint("DistanceY", -1, 1, 0, 2, Q("7.5 mm")),
])
pocket7 = body.newObject("PartDesign::Pocket", "Pocket006")
pocket7.Profile = sketch12
pocket7.Type = "ThroughAll"
pocket7.Reversed = True

sketch13 = body.newObject("Sketcher::SketchObject", "Sketch012")
sketch13.AttachmentSupport = (doc.getObject("XY_Plane"), [""])
sketch13.MapMode = "FlatFace"
sketch13.AttachmentOffset = App.Placement(App.Vector(0, 0, -11.27), App.Rotation())
sketch13.addGeometry([
    Part.LineSegment(App.Vector(4, -20, 0), App.Vector(4, -33, 0)),
    Part.LineSegment(App.Vector(4, -33, 0), App.Vector(20, -33, 0)),
    Part.LineSegment(App.Vector(20, -33, 0), App.Vector(20, -20, 0)),
    Part.LineSegment(App.Vector(20, -20, 0), App.Vector(4, -20, 0)),
], False)
sketch13.addConstraint([
    Sketcher.Constraint("Coincident", 0, 2, 1, 1),
    Sketcher.Constraint("Coincident", 1, 2, 2, 1),
    Sketcher.Constraint("Coincident", 2, 2, 3, 1),
    Sketcher.Constraint("Coincident", 3, 2, 0, 1),
    Sketcher.Constraint("Vertical", 0),
    Sketcher.Constraint("Horizontal", 1),
    Sketcher.Constraint("Vertical", 2),
    Sketcher.Constraint("Horizontal", 3),
    Sketcher.Constraint("DistanceY", 0, 2, 0, 1, Q("0.5 in")),
    Sketcher.Constraint("DistanceX", 1, 1, 1, 2, Q("16 mm")),
    Sketcher.Constraint("DistanceX", -1, 1, 0, 2, Q("4.2431 mm")),
    Sketcher.Constraint("DistanceY", 0, 2, -1, 1, Q("32.75 mm")),
])
pocket8 = body.newObject("PartDesign::Pocket", "Pocket007")
pocket8.Profile = sketch13
pocket8.Type = "ThroughAll"
pocket8.Midplane = True

sketch14 = body.newObject("Sketcher::SketchObject", "Sketch013")
sketch14.AttachmentSupport = (doc.getObject("YZ_Plane"), [""])
sketch14.MapMode = "FlatFace"
sketch14.AttachmentOffset = App.Placement(App.Vector(0, 0, -4 * 25.4), App.Rotation())
sketch14.addGeometry([
    Part.LineSegment(App.Vector(-51, 25, 0), App.Vector(0, 25, 0)),
    Part.LineSegment(App.Vector(0, 25, 0), App.Vector(0, 13, 0)),
    Part.LineSegment(App.Vector(0, 13, 0), App.Vector(-25, 13, 0)),
    Part.ArcOfCircle(Part.Circle(App.Vector(-25, 0, 0), App.Vector(0, 0, 1), 13), math.radians(90), math.radians(270)),
    Part.LineSegment(App.Vector(-25, -13, 0), App.Vector(0, -13, 0)),
    Part.LineSegment(App.Vector(0, -13, 0), App.Vector(0, -25, 0)),
    Part.LineSegment(App.Vector(0, -25, 0), App.Vector(-51, -25, 0)),
    Part.LineSegment(App.Vector(-51, -25, 0), App.Vector(-51, 25, 0)),
], False)
sketch14.addConstraint([
    Sketcher.Constraint("Coincident", 0, 2, 1, 1),
    Sketcher.Constraint("Coincident", 1, 2, 2, 1),
    Sketcher.Constraint("Tangent", 2, 2, 3, 1),
    Sketcher.Constraint("Tangent", 3, 2, 4, 1),
    Sketcher.Constraint("Coincident", 4, 2, 5, 1),
    Sketcher.Constraint("Coincident", 5, 2, 6, 1),
    Sketcher.Constraint("Coincident", 6, 2, 7, 1),
    Sketcher.Constraint("Coincident", 7, 2, 0, 1),
    Sketcher.Constraint("Horizontal", 0),
    Sketcher.Constraint("Vertical", 1),
    Sketcher.Constraint("Horizontal", 2),
    Sketcher.Constraint("Horizontal", 4),
    Sketcher.Constraint("Vertical", 5),
    Sketcher.Constraint("Horizontal", 6),
    Sketcher.Constraint("Vertical", 7),
    Sketcher.Constraint("Symmetric", 1, 2, 4, 2, -1, 1),
    Sketcher.Constraint("Symmetric", 0, 2, 5, 2, -1),
    Sketcher.Constraint("Equal", 6, 7),
    Sketcher.Constraint("Radius", 3, Q("0.5 in")),
    Sketcher.Constraint("DistanceX", 0, 1, 0, 2, Q("2 in")),
    Sketcher.Constraint("DistanceX", 2, 2, 2, 1, Q("1 in")),
])
pad5 = body.newObject("PartDesign::Pad", "Pad004")
pad5.Profile = sketch14
pad5.Length = Q("1 in")

sketch15 = body.newObject("Sketcher::SketchObject", "Sketch014")
sketch15.AttachmentSupport = (doc.getObject("YZ_Plane"), [""])
sketch15.MapMode = "FlatFace"
sketch15.AttachmentOffset = App.Placement(App.Vector(0, 0, -4 * 25.4), App.Rotation())
sketch15.addGeometry([
    Part.LineSegment(App.Vector(0, -25, 0), App.Vector(-51, -25, 0)),
    Part.LineSegment(App.Vector(-51, -25, 0), App.Vector(-51, 25, 0)),
    Part.LineSegment(App.Vector(-51, 25, 0), App.Vector(0, 25, 0)),
    Part.LineSegment(App.Vector(0, 25, 0), App.Vector(0, -25, 0)),
], False)
sketch15.addConstraint([
    Sketcher.Constraint("Coincident", 0, 2, 1, 1),
    Sketcher.Constraint("Coincident", 1, 2, 2, 1),
    Sketcher.Constraint("Coincident", 2, 2, 3, 1),
    Sketcher.Constraint("Coincident", 3, 2, 0, 1),
    Sketcher.Constraint("Horizontal", 0),
    Sketcher.Constraint("Vertical", 1),
    Sketcher.Constraint("Horizontal", 2),
    Sketcher.Constraint("Vertical", 3),
    Sketcher.Constraint("Symmetric", 2, 2, 3, 2, -1, 1),
    Sketcher.Constraint("Equal", 2, 1),
    Sketcher.Constraint("DistanceX", 0, 2, 0, 1, Q("2 in")),
])
pad6 = body.newObject("PartDesign::Pad", "Pad005")
pad6.Profile = sketch15
pad6.Length = Q("0.125 in")
pad6.Reversed = True

sketch16 = body.newObject("Sketcher::SketchObject", "Sketch015")
sketch16.AttachmentSupport = (doc.getObject("YZ_Plane"), [""])
sketch16.MapMode = "FlatFace"
sketch16.AttachmentOffset = App.Placement(App.Vector(0, 0, -4.125 * 25.4), App.Rotation())
sketch16.addGeometry([
    Part.LineSegment(App.Vector(51, -25, 0), App.Vector(-51, -25, 0)),
    Part.LineSegment(App.Vector(-51, -25, 0), App.Vector(-51, 25, 0)),
    Part.LineSegment(App.Vector(-51, 25, 0), App.Vector(51, 25, 0)),
    Part.LineSegment(App.Vector(51, 25, 0), App.Vector(51, -25, 0)),
], False)
sketch16.addConstraint([
    Sketcher.Constraint("Coincident", 0, 2, 1, 1),
    Sketcher.Constraint("Coincident", 1, 2, 2, 1),
    Sketcher.Constraint("Coincident", 2, 2, 3, 1),
    Sketcher.Constraint("Coincident", 3, 2, 0, 1),
    Sketcher.Constraint("Horizontal", 0),
    Sketcher.Constraint("Vertical", 1),
    Sketcher.Constraint("Horizontal", 2),
    Sketcher.Constraint("Vertical", 3),
    Sketcher.Constraint("Symmetric", 0, 2, 2, 2, -1, 1),
    Sketcher.Constraint("DistanceX", 0, 2, 0, 1, Q("4 in")),
    Sketcher.Constraint("DistanceY", 1, 1, 1, 2, Q("2 in")),
])
pad7 = body.newObject("PartDesign::Pad", "Pad006")
pad7.Profile = sketch16
pad7.Length = Q("0.25 in")
pad7.Reversed = True

sketch17 = body.newObject("Sketcher::SketchObject", "Sketch016")
sketch17.AttachmentSupport = (doc.getObject("YZ_Plane"), [""])
sketch17.MapMode = "FlatFace"
sketch17.AttachmentOffset = App.Placement(App.Vector(0, 0, -4.125 * 25.4), App.Rotation())
sketch17.addGeometry([
    Part.Circle(App.Vector(38.1, 12.7, 0), App.Vector(0, 0, 1), 3.4),
    Part.Circle(App.Vector(38.1, -12.7, 0), App.Vector(0, 0, 1), 3.4),
    Part.Circle(App.Vector(12.7, -12.7, 0), App.Vector(0, 0, 1), 3.4),
    Part.Circle(App.Vector(12.7, 12.7, 0), App.Vector(0, 0, 1), 3.4),
], False)
sketch17.addConstraint([
    Sketcher.Constraint("Equal", 0, 1),
    Sketcher.Constraint("Equal", 1, 2),
    Sketcher.Constraint("Equal", 2, 3),
    Sketcher.Constraint("Symmetric", 0, 3, 1, 3, -1),
    Sketcher.Constraint("Symmetric", 2, 3, 3, 3, -1),
    Sketcher.Constraint("Horizontal", 1, 3, 2, 3),
    Sketcher.Constraint("Diameter", 0, Q("0.27 in")),
    Sketcher.Constraint("DistanceY", 1, 3, 0, 3, Q("1 in")),
    Sketcher.Constraint("DistanceX", 2, 3, 1, 3, Q("1 in")),
    Sketcher.Constraint("DistanceX", -1, 1, 0, 3, Q("1.5 in")),
])
pocket9 = body.newObject("PartDesign::Pocket", "Pocket008")
pocket9.Profile = sketch17
pocket9.Type = "ThroughAll"

sketch18 = body.newObject("Sketcher::SketchObject", "Sketch017")
sketch18.AttachmentSupport = (doc.getObject("XY_Plane"), [""])
sketch18.MapMode = "FlatFace"
sketch18.AttachmentOffset = App.Placement(App.Vector(0, 0, 1 * 25.4), App.Rotation())
sketch18.addGeometry([
    Part.LineSegment(App.Vector(-100, 51, 0), App.Vector(-100, -51, 0)),
    Part.LineSegment(App.Vector(-100, -51, 0), App.Vector(-49, -51, 0)),
    Part.LineSegment(App.Vector(-49, -51, 0), App.Vector(-49, 51, 0)),
    Part.LineSegment(App.Vector(-49, 51, 0), App.Vector(-100, 51, 0)),
], False)
sketch18.addConstraint([
    Sketcher.Constraint("Coincident", 0, 2, 1, 1),
    Sketcher.Constraint("Coincident", 1, 2, 2, 1),
    Sketcher.Constraint("Coincident", 2, 2, 3, 1),
    Sketcher.Constraint("Coincident", 3, 2, 0, 1),
    Sketcher.Constraint("Vertical", 0),
    Sketcher.Constraint("Horizontal", 1),
    Sketcher.Constraint("Vertical", 2),
    Sketcher.Constraint("Horizontal", 3),
    Sketcher.Constraint("DistanceX", 1, 1, 1, 2, Q("2 in")),
    Sketcher.Constraint("DistanceY", 0, 2, 0, 1, Q("4 in")),
    Sketcher.Constraint("DistanceY", 0, 2, -1, 1, Q("2 in")),
    Sketcher.Constraint("DistanceX", 0, 2, -1, 1, Q("100.1609 mm")),
])
pad8 = body.newObject("PartDesign::Pad", "Pad007")
pad8.Profile = sketch18
pad8.Length = Q("0.25 in")

sketch19 = body.newObject("Sketcher::SketchObject", "Sketch018")
sketch19.AttachmentSupport = (doc.getObject("XY_Plane"), [""])
sketch19.MapMode = "FlatFace"
sketch19.AttachmentOffset = App.Placement(App.Vector(0, 0, 1 * 25.4), App.Rotation())
sketch19.addGeometry([
    Part.Circle(App.Vector(-62.1, 38.1, 0), App.Vector(0, 0, 1), 3.4),
    Part.Circle(App.Vector(-87.5, 38.1, 0), App.Vector(0, 0, 1), 3.4),
    Part.Circle(App.Vector(-87.5, 12.7, 0), App.Vector(0, 0, 1), 3.4),
    Part.Circle(App.Vector(-62.1, 12.7, 0), App.Vector(0, 0, 1), 3.4),
], False)
sketch19.addConstraint([
    Sketcher.Constraint("Equal", 0, 1),
    Sketcher.Constraint("Equal", 1, 2),
    Sketcher.Constraint("Equal", 2, 3),
    Sketcher.Constraint("Horizontal", 0, 3, 1, 3),
    Sketcher.Constraint("Horizontal", 2, 3, 3, 3),
    Sketcher.Constraint("Vertical", 1, 3, 2, 3),
    Sketcher.Constraint("Vertical", 0, 3, 3, 3),
    Sketcher.Constraint("Diameter", 0, Q("0.27 in")),
    Sketcher.Constraint("DistanceX", 1, 3, 0, 3, Q("1 in")),
    Sketcher.Constraint("DistanceY", 2, 3, 1, 3, Q("1 in")),
    Sketcher.Constraint("DistanceY", -1, 1, 0, 3, Q("1.5 in")),
    Sketcher.Constraint("DistanceX", 0, 3, -1, 1, Q("62.0609 mm")),
])
pocket10 = body.newObject("PartDesign::Pocket", "Pocket009")
pocket10.Profile = sketch19
pocket10.Type = "ThroughAll"
pocket10.Reversed = True

sketch20 = body.newObject("Sketcher::SketchObject", "Sketch019")
sketch20.AttachmentSupport = (doc.getObject("XZ_Plane"), [""])
sketch20.MapMode = "FlatFace"
sketch20.AttachmentOffset = App.Placement(App.Vector(0, 0, -2 * 25.4), App.Rotation())
sketch20.addGeometry([
    Part.LineSegment(App.Vector(-130, -56, 0), App.Vector(-130, 53, 0)),
    Part.LineSegment(App.Vector(-130, 53, 0), App.Vector(-19, 53, 0)),
    Part.LineSegment(App.Vector(-19, 53, 0), App.Vector(-19, -56, 0)),
    Part.LineSegment(App.Vector(-19, -56, 0), App.Vector(-130, -56, 0)),
], False)
sketch20.addConstraint([
    Sketcher.Constraint("Coincident", 0, 2, 1, 1),
    Sketcher.Constraint("Coincident", 1, 2, 2, 1),
    Sketcher.Constraint("Coincident", 2, 2, 3, 1),
    Sketcher.Constraint("Coincident", 3, 2, 0, 1),
    Sketcher.Constraint("Vertical", 0),
    Sketcher.Constraint("Horizontal", 1),
    Sketcher.Constraint("Vertical", 2),
    Sketcher.Constraint("Horizontal", 3),
    Sketcher.Constraint("DistanceX", 1, 1, 1, 2, Q("110.24982 mm")),
    Sketcher.Constraint("DistanceY", 0, 1, 0, 2, Q("109.628139 mm")),
    Sketcher.Constraint("DistanceX", 0, 2, -1, 1, Q("129.720237 mm")),
    Sketcher.Constraint("DistanceY", -1, 1, 0, 2, Q("53.246607 mm")),
])
pocket11 = body.newObject("PartDesign::Pocket", "Pocket010")
pocket11.Profile = sketch20
pocket11.Length = Q("1.25 in")
pocket11.Reversed = True
doc.recompute()

fillet = body.newObject("PartDesign::Fillet", "Fillet")
fillet.Base = (pocket11, edges_at(pocket11, [(4.243, -20.05, 12.223), (4.243, -20.05, -12.223)]))
fillet.Radius = Q("0.3 in")

doc.recompute()
